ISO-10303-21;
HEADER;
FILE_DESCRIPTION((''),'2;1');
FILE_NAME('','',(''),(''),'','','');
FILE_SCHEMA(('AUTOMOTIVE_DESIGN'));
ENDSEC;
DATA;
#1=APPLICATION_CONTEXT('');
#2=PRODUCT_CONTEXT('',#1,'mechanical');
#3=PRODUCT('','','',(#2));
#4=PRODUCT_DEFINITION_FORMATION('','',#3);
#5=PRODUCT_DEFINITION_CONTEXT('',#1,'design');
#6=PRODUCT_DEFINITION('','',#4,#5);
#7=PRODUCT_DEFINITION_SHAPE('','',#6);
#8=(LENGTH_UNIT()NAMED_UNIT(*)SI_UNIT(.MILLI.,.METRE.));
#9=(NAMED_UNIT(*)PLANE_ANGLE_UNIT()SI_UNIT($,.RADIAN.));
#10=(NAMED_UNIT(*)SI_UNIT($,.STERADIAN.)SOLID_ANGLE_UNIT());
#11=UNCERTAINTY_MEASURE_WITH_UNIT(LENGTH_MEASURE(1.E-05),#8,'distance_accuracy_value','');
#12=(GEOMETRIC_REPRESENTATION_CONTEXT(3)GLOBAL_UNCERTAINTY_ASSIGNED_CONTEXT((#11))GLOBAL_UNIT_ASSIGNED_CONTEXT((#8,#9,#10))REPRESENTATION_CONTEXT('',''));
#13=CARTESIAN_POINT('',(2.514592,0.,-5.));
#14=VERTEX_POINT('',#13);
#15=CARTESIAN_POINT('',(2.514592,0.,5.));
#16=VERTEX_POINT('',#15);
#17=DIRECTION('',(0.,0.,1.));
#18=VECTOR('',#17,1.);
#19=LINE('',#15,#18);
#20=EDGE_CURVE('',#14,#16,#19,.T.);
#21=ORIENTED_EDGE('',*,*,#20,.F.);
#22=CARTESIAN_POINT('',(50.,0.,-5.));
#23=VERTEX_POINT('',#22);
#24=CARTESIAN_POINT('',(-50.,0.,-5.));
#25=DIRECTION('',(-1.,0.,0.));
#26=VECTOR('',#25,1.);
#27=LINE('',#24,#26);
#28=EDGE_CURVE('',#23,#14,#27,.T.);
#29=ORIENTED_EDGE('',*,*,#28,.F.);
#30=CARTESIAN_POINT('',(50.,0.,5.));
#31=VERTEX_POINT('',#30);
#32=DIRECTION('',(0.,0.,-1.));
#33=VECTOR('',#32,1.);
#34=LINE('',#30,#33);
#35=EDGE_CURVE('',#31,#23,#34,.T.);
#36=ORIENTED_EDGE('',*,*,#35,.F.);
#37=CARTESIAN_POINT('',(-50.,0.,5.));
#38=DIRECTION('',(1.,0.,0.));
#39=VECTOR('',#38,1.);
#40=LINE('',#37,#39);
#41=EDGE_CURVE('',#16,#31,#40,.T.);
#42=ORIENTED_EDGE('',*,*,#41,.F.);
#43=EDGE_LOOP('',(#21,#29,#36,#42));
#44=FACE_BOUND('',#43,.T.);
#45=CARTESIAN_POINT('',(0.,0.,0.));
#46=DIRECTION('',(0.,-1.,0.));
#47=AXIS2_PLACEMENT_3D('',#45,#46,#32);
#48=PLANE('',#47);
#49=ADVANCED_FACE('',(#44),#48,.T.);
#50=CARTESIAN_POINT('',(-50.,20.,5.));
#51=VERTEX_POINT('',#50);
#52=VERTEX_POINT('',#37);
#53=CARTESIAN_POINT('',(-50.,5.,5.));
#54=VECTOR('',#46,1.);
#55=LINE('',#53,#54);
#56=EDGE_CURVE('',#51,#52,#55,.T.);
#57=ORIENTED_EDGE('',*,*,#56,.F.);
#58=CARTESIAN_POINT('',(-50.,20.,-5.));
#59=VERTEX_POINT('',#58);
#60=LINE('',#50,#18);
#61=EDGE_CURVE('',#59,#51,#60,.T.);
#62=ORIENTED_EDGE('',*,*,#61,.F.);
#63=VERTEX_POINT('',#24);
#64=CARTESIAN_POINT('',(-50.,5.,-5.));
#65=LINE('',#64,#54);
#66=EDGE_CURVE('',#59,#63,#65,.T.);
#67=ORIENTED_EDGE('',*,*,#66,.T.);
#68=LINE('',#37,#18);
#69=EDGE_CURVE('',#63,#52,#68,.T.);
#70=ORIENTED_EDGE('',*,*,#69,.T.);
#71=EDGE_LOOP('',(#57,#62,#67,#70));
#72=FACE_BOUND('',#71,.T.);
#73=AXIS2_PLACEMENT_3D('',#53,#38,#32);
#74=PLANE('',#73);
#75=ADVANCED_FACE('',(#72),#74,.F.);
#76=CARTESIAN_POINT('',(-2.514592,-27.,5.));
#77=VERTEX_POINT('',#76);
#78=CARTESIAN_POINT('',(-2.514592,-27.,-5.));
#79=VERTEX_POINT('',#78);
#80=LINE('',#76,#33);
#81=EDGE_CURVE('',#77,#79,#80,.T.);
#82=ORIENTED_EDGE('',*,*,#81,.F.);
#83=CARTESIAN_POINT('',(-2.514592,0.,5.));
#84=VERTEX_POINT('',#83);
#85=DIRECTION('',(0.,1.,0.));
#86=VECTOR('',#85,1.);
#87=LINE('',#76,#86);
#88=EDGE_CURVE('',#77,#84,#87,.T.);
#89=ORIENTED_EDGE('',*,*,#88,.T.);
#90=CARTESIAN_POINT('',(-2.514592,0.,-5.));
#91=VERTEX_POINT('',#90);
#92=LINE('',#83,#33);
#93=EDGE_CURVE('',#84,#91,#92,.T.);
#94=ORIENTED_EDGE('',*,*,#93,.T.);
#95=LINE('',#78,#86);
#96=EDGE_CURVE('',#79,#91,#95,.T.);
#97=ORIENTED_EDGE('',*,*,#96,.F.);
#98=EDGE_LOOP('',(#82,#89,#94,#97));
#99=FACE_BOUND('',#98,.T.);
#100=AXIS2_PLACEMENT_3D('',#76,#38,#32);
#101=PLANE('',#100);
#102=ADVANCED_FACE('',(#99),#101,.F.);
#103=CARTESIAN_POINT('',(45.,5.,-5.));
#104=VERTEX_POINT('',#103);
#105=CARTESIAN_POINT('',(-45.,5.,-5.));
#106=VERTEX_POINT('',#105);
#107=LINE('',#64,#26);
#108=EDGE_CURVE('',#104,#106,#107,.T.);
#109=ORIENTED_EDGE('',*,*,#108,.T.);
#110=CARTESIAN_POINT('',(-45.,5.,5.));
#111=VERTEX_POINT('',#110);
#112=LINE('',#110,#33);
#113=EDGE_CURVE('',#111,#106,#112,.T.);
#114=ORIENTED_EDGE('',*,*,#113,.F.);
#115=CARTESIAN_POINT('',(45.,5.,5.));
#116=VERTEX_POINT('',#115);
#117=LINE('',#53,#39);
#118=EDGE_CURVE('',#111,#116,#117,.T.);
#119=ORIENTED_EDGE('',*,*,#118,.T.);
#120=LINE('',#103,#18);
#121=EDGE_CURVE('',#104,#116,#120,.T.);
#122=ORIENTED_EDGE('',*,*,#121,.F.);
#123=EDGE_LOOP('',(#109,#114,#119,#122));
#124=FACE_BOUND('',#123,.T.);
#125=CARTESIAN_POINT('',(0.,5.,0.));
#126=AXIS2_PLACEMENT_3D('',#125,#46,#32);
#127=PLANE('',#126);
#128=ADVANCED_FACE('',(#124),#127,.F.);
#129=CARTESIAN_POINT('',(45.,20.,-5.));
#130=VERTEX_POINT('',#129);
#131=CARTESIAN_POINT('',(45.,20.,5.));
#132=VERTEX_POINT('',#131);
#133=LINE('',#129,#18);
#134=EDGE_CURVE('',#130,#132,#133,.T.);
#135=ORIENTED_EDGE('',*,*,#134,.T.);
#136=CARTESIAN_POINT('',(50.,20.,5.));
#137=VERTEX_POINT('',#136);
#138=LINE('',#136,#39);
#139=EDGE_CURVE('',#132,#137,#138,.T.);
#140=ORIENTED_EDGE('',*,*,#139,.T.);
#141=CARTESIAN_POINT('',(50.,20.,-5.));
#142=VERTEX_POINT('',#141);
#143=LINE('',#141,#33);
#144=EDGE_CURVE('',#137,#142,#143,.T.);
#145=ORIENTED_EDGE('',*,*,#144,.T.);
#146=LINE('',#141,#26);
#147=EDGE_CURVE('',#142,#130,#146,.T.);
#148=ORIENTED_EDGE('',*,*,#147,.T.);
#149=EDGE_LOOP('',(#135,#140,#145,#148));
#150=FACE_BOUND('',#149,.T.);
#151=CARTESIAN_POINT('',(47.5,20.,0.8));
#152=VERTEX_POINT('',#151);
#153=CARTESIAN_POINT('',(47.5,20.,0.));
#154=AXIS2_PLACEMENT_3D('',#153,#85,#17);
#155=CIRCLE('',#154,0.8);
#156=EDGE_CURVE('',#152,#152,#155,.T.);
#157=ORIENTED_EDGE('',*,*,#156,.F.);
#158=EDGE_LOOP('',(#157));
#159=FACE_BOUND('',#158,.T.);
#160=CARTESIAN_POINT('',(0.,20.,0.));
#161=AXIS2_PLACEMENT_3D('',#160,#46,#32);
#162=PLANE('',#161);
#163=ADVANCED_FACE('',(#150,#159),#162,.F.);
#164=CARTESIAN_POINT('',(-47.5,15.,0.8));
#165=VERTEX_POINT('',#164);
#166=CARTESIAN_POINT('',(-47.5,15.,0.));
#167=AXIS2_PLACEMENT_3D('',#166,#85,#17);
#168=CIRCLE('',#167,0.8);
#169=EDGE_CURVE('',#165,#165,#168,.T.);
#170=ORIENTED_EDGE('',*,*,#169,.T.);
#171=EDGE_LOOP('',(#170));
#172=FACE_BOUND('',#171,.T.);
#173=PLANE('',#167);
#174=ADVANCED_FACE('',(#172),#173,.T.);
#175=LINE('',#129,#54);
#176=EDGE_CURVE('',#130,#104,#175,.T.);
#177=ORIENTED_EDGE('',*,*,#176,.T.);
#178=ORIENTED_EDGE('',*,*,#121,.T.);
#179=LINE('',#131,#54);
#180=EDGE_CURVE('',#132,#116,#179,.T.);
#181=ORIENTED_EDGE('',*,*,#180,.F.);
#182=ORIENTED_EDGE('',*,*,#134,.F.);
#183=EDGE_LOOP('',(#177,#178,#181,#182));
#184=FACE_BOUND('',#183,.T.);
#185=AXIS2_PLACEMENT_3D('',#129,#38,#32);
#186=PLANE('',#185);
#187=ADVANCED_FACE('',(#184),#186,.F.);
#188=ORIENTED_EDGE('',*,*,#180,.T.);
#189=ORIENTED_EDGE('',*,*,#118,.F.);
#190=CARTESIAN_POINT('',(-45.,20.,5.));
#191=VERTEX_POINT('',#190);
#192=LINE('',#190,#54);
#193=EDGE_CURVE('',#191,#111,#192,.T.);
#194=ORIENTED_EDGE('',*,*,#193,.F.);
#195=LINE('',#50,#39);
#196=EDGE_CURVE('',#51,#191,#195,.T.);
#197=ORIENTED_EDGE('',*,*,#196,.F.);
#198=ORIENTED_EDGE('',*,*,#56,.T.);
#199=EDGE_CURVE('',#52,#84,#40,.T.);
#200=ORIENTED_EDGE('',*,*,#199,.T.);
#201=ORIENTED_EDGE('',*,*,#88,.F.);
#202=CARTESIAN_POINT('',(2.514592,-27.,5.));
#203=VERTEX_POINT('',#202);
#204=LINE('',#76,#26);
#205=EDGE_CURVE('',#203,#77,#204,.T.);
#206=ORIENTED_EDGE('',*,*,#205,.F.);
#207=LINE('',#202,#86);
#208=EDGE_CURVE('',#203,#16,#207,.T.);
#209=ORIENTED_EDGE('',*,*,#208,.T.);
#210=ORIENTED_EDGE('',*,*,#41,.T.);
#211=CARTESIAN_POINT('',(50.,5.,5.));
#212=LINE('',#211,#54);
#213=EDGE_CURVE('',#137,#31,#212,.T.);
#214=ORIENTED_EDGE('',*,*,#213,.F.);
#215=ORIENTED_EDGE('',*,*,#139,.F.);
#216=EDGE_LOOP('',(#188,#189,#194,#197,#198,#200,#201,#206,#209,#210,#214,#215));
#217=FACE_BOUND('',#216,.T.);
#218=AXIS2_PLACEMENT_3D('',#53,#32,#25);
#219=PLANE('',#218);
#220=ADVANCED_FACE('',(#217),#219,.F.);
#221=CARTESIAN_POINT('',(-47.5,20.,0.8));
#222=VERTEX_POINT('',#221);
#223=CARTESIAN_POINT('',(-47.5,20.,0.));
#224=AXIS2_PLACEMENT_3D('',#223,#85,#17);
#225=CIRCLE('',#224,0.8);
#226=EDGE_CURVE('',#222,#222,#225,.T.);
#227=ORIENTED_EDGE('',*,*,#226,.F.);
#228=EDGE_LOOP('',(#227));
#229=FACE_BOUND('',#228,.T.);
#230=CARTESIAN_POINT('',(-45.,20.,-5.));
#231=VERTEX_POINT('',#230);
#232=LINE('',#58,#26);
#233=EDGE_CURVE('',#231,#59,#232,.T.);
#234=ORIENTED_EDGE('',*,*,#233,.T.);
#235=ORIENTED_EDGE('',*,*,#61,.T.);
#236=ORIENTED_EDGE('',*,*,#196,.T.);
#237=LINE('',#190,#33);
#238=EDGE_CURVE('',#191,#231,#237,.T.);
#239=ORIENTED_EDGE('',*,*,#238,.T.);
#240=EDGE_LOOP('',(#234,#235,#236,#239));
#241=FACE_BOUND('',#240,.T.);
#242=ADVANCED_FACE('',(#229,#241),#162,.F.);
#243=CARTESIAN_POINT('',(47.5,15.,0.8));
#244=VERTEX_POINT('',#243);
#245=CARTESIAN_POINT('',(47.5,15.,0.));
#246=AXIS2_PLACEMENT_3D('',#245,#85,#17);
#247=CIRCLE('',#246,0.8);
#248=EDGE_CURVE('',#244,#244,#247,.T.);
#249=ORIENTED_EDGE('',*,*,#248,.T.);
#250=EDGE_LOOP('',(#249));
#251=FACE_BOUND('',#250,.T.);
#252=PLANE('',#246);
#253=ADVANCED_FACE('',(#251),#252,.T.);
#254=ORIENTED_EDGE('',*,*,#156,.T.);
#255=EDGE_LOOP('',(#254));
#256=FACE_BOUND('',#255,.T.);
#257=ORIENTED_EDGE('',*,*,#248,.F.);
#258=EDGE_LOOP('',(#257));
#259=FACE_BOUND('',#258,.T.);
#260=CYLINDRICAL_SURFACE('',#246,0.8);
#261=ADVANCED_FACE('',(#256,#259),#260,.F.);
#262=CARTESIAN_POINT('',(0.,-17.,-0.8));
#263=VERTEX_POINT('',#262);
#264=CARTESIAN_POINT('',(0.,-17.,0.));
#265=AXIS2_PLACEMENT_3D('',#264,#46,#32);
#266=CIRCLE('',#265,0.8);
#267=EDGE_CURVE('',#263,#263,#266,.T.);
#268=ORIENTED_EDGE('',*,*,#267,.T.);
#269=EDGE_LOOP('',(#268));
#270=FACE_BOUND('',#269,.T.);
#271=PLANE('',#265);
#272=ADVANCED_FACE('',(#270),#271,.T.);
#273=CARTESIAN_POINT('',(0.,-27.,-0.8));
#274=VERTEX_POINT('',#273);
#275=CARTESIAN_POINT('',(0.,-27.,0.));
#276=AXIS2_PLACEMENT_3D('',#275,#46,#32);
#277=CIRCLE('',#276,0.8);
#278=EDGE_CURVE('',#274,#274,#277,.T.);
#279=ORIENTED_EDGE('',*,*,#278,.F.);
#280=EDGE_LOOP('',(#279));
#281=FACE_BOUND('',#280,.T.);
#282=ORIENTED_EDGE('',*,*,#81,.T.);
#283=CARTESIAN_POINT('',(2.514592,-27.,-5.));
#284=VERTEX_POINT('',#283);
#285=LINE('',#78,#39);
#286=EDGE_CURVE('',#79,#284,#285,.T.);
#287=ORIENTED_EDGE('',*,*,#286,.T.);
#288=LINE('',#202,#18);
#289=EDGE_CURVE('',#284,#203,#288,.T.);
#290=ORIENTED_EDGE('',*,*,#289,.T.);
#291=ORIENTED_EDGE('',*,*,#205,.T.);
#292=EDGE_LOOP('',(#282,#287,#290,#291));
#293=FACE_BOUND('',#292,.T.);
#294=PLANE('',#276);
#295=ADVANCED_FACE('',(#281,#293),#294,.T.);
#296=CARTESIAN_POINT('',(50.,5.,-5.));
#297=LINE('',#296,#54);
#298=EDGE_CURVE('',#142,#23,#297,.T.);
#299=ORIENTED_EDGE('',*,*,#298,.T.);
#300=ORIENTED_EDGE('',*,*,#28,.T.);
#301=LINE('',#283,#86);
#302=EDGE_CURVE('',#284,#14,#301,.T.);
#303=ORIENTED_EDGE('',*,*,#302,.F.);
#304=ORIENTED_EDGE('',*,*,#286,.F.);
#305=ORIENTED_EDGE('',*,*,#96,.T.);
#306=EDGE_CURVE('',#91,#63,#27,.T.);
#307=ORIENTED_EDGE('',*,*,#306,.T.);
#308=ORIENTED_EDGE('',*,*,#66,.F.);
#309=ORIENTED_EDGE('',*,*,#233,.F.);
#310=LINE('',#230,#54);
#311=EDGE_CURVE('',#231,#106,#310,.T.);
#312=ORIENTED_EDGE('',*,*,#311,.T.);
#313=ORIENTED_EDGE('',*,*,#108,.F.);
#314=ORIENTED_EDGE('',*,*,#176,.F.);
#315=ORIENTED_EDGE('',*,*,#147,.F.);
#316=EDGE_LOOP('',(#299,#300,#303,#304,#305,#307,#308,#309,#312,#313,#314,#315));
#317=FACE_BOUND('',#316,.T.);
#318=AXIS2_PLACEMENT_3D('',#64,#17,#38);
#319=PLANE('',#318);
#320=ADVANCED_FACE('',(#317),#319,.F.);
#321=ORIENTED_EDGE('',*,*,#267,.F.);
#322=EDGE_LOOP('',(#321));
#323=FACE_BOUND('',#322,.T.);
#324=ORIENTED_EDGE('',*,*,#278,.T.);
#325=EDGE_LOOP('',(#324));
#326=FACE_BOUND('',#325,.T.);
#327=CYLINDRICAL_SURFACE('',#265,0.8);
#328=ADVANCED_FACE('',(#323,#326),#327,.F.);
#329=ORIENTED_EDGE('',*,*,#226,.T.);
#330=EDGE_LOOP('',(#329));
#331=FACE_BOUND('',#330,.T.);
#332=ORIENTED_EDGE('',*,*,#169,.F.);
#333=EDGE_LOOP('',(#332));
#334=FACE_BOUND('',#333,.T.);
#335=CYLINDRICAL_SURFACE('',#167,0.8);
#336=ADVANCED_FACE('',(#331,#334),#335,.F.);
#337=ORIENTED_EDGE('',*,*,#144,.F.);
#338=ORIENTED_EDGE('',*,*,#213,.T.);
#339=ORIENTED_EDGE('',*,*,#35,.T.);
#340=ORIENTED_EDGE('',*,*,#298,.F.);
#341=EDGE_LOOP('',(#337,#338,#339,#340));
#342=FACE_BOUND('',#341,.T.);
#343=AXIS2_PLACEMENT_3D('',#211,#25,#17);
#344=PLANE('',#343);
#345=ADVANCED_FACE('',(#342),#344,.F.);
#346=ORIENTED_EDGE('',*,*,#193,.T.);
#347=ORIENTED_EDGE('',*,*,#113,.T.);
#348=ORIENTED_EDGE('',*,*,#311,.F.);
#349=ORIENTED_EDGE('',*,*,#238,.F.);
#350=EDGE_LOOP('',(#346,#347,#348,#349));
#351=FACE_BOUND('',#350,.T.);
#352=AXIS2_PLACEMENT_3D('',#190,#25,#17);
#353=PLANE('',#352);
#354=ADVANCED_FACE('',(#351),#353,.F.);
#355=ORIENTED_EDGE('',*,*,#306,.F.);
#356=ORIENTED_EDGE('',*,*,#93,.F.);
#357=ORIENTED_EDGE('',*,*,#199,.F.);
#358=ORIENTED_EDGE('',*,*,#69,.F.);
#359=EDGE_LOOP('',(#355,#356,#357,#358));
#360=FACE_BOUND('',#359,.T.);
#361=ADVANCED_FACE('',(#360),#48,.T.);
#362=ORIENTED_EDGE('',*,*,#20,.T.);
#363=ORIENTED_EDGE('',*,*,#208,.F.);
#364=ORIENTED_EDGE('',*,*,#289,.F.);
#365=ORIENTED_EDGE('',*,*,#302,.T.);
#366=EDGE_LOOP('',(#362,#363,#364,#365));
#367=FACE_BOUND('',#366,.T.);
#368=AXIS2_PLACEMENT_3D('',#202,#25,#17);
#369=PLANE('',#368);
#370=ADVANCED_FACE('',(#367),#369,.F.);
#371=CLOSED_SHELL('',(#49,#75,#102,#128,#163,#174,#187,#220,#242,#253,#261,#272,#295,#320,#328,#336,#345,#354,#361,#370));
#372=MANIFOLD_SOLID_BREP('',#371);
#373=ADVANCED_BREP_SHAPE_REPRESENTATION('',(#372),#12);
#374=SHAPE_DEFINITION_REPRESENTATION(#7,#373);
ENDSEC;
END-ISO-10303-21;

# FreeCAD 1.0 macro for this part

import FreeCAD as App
import Part
import Sketcher

V = App.Vector
Q = App.Units.Quantity


def add_polygon(sketch, points):
    """Adds a closed chain of lines whose ends are joined by coincident constraints."""
    first, n = sketch.GeometryCount, len(points)
    for a, b in zip(points, points[1:] + points[:1]):
        sketch.addGeometry(Part.LineSegment(App.Vector(*a, 0), App.Vector(*b, 0)), False)
    for i in range(n):
        sketch.addConstraint(Sketcher.Constraint("Coincident", first + i, 2, first + (i + 1) % n, 1))

doc = App.newDocument("Part")
body = doc.addObject("PartDesign::Body", "Body")

sketch1 = body.newObject("Sketcher::SketchObject", "Sketch")
sketch1.AttachmentSupport = (doc.getObject("XZ_Plane"), [""])
sketch1.MapMode = "FlatFace"
add_polygon(sketch1, [(-50, -5), (-50, 5), (50, 5), (50, -5)])
sketch1.addConstraint([
    Sketcher.Constraint("Vertical", 0),
    Sketcher.Constraint("Horizontal", 1),
    Sketcher.Constraint("Vertical", 2),
    Sketcher.Constraint("Horizontal", 3),
    Sketcher.Constraint("Symmetric", 0, 2, 2, 2, -1, 1),
    Sketcher.Constraint("DistanceX", 1, 1, 1, 2, Q("100 mm")),
    Sketcher.Constraint("DistanceY", 0, 1, 0, 2, Q("10 mm")),
])
pad1 = body.newObject("PartDesign::Pad", "Pad")
pad1.Profile = sketch1
pad1.Length = 5
pad1.Reversed = True

sketch2 = body.newObject("Sketcher::SketchObject", "Sketch001")
sketch2.AttachmentSupport = (doc.getObject("XZ_Plane"), [""])
sketch2.MapMode = "FlatFace"
sketch2.AttachmentOffset = App.Placement(V(0, 0, -5), App.Rotation())
add_polygon(sketch2, [(-50, -5), (-50, 5), (-45, 5), (-45, -5)])
add_polygon(sketch2, [(45, -5), (45, 5), (50, 5), (50, -5)])
sketch2.addConstraint([
    Sketcher.Constraint("Vertical", 0),
    Sketcher.Constraint("Horizontal", 1),
    Sketcher.Constraint("Vertical", 2),
    Sketcher.Constraint("Horizontal", 3),
    Sketcher.Constraint("Vertical", 4),
    Sketcher.Constraint("Horizontal", 5),
    Sketcher.Constraint("Vertical", 6),
    Sketcher.Constraint("Horizontal", 7),
    Sketcher.Constraint("Symmetric", 2, 2, 4, 2, -1, 1),
    Sketcher.Constraint("Symmetric", 0, 2, 6, 2, -1, 1),
    Sketcher.Constraint("Horizontal", 1, 2, 4, 2),
    Sketcher.Constraint("DistanceX", 1, 1, 1, 2, Q("5 mm")),
    Sketcher.Constraint("DistanceY", 0, 1, 0, 2, Q("10 mm")),
    Sketcher.Constraint("DistanceX", 0, 2, -1, 1, Q("50 mm")),
])
pad2 = body.newObject("PartDesign::Pad", "Pad001")
pad2.Profile = sketch2
pad2.Length = 15
pad2.Reversed = True

sketch3 = body.newObject("Sketcher::SketchObject", "Sketch002")
sketch3.AttachmentSupport = (doc.getObject("XZ_Plane"), [""])
sketch3.MapMode = "FlatFace"
sketch3.AttachmentOffset = App.Placement(V(0, 0, -20), App.Rotation())
sketch3.addGeometry([
    Part.Circle(V(-47.5, 0, 0), V(0, 0, 1), 0.8),
    Part.Circle(V(47.5, 0, 0), V(0, 0, 1), 0.8),
], False)
sketch3.addConstraint([
    Sketcher.Constraint("Equal", 0, 1),
    Sketcher.Constraint("Symmetric", 0, 3, 1, 3, -1, 1),
    Sketcher.Constraint("PointOnObject", 0, 3, -1),
    Sketcher.Constraint("Diameter", 0, Q("1.6 mm")),
    Sketcher.Constraint("DistanceX", 0, 3, 1, 3, Q("95 mm")),
])
pocket1 = body.newObject("PartDesign::Pocket", "Pocket")
pocket1.Profile = sketch3
pocket1.Length = 5
pocket1.Reversed = True

sketch4 = body.newObject("Sketcher::SketchObject", "Sketch003")
sketch4.AttachmentSupport = (doc.getObject("XZ_Plane"), [""])
sketch4.MapMode = "FlatFace"
add_polygon(sketch4, [(-3, 5), (-3, -5), (3, -5), (3, 5)])
sketch4.addConstraint([
    Sketcher.Constraint("Vertical", 0),
    Sketcher.Constraint("Horizontal", 1),
    Sketcher.Constraint("Vertical", 2),
    Sketcher.Constraint("Horizontal", 3),
    Sketcher.Constraint("Symmetric", 0, 2, 2, 2, -1, 1),
    Sketcher.Constraint("DistanceY", 0, 2, 0, 1, Q("10 mm")),
    Sketcher.Constraint("DistanceX", 1, 1, 1, 2, Q("5.029184 mm")),
])
pad3 = body.newObject("PartDesign::Pad", "Pad002")
pad3.Profile = sketch4
pad3.Length = 27

sketch5 = body.newObject("Sketcher::SketchObject", "Sketch004")
sketch5.AttachmentSupport = (doc.getObject("XZ_Plane"), [""])
sketch5.MapMode = "FlatFace"
sketch5.AttachmentOffset = App.Placement(V(0, 0, 27), App.Rotation())
sketch5.addGeometry(Part.Circle(V(0, 0, 0), V(0, 0, 1), 0.8), False)
sketch5.addConstraint([
    Sketcher.Constraint("Coincident", 0, 3, -1, 1),
    Sketcher.Constraint("Diameter", 0, Q("1.6 mm")),
])
pocket2 = body.newObject("PartDesign::Pocket", "Pocket001")
pocket2.Profile = sketch5
pocket2.Length = 10

doc.recompute()
